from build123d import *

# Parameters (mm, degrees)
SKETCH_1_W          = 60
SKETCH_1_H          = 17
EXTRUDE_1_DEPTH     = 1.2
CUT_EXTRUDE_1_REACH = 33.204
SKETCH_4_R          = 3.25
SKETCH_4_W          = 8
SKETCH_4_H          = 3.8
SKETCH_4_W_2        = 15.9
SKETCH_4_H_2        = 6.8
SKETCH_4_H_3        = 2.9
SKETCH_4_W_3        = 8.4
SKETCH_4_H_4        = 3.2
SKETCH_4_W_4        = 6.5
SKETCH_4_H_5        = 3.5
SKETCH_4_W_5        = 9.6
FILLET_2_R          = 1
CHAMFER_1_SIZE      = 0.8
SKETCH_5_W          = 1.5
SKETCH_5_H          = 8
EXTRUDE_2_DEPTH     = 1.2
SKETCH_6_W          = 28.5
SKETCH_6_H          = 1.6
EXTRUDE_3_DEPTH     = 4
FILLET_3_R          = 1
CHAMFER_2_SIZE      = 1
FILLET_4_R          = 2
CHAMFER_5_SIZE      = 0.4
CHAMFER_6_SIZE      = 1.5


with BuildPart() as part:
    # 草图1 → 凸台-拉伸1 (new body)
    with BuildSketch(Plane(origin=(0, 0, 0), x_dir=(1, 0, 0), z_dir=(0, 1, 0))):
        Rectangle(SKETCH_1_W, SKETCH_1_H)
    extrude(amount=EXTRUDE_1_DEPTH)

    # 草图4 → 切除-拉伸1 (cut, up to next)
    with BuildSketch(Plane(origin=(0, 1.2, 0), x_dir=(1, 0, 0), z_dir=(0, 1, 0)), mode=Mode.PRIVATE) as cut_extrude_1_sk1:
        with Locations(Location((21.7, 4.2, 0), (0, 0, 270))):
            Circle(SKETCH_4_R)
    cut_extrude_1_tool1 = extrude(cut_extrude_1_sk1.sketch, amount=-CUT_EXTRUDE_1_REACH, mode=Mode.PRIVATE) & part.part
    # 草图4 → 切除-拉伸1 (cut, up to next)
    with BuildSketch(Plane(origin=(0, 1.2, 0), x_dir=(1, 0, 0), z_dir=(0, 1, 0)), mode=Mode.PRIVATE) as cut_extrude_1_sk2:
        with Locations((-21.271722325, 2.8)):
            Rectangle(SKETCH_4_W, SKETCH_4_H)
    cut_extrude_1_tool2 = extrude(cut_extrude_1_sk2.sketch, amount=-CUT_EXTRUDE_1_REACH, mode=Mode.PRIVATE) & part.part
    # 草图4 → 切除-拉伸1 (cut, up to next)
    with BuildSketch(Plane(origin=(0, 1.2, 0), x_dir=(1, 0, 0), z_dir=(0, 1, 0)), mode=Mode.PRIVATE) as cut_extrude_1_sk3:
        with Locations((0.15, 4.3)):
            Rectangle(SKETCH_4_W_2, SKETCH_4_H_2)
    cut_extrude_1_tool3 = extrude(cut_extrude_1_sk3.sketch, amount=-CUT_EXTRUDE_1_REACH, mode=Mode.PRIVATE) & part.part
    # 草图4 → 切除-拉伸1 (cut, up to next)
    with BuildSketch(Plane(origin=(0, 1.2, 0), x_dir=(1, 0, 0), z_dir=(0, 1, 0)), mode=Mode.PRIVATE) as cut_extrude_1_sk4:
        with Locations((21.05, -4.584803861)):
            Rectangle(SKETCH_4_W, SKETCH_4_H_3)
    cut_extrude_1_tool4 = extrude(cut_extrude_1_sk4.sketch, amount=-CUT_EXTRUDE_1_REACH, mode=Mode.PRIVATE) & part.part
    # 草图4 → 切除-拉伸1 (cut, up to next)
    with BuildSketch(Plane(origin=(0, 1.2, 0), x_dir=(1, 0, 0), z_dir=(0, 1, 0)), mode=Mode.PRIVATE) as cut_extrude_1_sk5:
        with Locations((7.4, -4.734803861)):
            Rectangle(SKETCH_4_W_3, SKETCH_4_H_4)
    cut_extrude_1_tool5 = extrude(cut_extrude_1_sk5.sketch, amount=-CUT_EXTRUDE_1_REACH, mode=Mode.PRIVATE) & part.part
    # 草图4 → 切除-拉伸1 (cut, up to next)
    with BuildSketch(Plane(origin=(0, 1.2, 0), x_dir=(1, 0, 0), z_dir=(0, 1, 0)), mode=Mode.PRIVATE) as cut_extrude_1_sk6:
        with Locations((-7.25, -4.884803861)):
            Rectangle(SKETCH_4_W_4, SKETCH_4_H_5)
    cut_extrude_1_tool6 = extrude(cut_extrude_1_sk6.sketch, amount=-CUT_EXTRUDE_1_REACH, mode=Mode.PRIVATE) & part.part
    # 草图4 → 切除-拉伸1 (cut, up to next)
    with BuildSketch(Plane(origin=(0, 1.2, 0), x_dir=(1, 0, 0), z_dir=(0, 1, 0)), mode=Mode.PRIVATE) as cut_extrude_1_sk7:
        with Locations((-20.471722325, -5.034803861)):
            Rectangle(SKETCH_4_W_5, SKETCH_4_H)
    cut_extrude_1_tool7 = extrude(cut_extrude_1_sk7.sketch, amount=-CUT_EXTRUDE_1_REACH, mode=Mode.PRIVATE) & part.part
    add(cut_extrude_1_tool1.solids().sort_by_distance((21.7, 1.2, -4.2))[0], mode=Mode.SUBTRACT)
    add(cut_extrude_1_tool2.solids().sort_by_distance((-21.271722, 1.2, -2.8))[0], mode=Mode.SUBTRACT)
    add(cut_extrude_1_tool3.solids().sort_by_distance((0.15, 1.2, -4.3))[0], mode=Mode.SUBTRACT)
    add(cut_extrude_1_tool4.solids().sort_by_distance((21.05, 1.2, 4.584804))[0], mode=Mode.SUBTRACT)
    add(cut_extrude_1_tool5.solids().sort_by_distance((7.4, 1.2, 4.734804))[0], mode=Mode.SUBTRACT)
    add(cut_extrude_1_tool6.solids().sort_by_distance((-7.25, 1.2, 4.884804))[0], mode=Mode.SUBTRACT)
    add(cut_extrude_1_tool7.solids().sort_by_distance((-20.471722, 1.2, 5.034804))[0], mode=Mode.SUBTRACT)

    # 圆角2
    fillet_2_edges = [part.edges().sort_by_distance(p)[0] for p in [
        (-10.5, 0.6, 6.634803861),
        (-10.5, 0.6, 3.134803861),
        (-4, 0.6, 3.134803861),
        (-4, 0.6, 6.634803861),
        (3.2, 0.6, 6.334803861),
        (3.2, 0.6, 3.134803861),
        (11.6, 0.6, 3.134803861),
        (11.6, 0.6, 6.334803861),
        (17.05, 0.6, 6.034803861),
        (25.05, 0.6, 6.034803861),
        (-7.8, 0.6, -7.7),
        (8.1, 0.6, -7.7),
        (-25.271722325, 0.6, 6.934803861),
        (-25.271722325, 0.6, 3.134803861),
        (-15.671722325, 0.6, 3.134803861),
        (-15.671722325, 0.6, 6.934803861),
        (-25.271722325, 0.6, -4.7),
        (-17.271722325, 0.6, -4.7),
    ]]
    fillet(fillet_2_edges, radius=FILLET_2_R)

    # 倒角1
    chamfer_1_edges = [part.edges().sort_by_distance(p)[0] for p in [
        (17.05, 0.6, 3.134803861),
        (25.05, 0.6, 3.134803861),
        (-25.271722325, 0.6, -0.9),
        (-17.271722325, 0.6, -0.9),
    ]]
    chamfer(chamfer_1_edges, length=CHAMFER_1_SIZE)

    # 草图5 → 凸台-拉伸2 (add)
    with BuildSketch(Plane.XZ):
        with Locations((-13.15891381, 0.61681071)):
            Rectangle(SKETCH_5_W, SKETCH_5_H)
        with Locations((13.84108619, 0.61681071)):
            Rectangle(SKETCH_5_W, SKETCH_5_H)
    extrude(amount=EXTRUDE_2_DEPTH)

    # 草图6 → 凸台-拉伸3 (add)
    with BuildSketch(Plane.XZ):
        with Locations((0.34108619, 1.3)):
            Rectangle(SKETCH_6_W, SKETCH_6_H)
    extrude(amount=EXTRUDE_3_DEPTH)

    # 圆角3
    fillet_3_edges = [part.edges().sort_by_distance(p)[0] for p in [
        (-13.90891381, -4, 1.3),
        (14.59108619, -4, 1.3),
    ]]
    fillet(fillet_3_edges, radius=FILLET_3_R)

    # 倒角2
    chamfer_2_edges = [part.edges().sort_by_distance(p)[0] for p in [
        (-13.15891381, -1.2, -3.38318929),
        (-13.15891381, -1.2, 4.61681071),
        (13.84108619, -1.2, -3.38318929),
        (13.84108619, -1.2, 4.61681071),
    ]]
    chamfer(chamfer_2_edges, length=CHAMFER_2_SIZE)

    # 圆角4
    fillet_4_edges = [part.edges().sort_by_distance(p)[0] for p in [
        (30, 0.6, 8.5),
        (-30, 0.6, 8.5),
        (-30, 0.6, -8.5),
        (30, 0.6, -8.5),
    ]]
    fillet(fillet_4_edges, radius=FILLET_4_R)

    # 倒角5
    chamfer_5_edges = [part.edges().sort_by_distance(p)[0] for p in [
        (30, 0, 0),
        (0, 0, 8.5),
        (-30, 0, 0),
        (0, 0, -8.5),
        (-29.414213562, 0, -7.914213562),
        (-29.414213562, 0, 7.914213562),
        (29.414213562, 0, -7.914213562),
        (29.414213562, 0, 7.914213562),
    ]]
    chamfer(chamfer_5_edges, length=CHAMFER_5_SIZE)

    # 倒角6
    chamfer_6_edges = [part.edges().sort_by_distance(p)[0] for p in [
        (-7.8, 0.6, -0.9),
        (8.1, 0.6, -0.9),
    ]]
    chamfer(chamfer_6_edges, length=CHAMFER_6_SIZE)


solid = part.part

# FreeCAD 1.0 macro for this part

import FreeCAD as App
import Part
import Sketcher
from FreeCAD import Vector


def edges_at(feature, points):
    """Names of the edges that pass closest to the given points."""
    edges = feature.Shape.Edges
    near = lambda p: min(range(len(edges)), key=lambda i: edges[i].distToShape(Part.Vertex(*p))[0])
    return sorted({f"Edge{near(p) + 1}" for p in points})

doc = App.newDocument("Part")
body = doc.addObject("PartDesign::Body", "Body")

# Sketch on XZ plane
sketch1 = doc.addObject("Sketcher::SketchObject", "Sketch")
body.addObject(sketch1)
sketch1.AttachmentSupport = (doc.XZ_Plane, [""])
sketch1.MapMode = "FlatFace"
sketch1.addGeometry(Part.LineSegment(Vector(-30, -8, 0), Vector(-30, 8, 0)), False)
sketch1.addGeometry(Part.LineSegment(Vector(-30, 8, 0), Vector(30, 8, 0)), False)
sketch1.addGeometry(Part.LineSegment(Vector(30, 8, 0), Vector(30, -8, 0)), False)
sketch1.addGeometry(Part.LineSegment(Vector(30, -8, 0), Vector(-30, -8, 0)), False)
sketch1.addConstraint(Sketcher.Constraint("Coincident", 0, 2, 1, 1))
sketch1.addConstraint(Sketcher.Constraint("Coincident", 1, 2, 2, 1))
sketch1.addConstraint(Sketcher.Constraint("Coincident", 2, 2, 3, 1))
sketch1.addConstraint(Sketcher.Constraint("Coincident", 3, 2, 0, 1))
sketch1.addConstraint(Sketcher.Constraint("Vertical", 0))
sketch1.addConstraint(Sketcher.Constraint("Horizontal", 1))
sketch1.addConstraint(Sketcher.Constraint("Vertical", 2))
sketch1.addConstraint(Sketcher.Constraint("Horizontal", 3))
sketch1.addConstraint(Sketcher.Constraint("Symmetric", 0, 2, 2, 2, -1, 1))
sketch1.addConstraint(Sketcher.Constraint("DistanceX", 1, 1, 1, 2, 60.0))
sketch1.addConstraint(Sketcher.Constraint("DistanceY", 0, 1, 0, 2, 17.0))
pad1 = doc.addObject("PartDesign::Pad", "Pad")
body.addObject(pad1)
pad1.Profile = sketch1
pad1.Length = 1.2
pad1.Reversed = True

# Sketch on XZ plane
sketch2 = doc.addObject("Sketcher::SketchObject", "Sketch001")
body.addObject(sketch2)
sketch2.AttachmentSupport = (doc.XZ_Plane, [""])
sketch2.MapMode = "FlatFace"
sketch2.AttachmentOffset = App.Placement(Vector(0, 0, -1.2), App.Rotation())
sketch2.addGeometry(Part.Circle(Vector(21.7, -4.2, 0), Vector(0, 0, 1), 3.2), False)
sketch2.addConstraint(Sketcher.Constraint("Diameter", 0, 6.5))
sketch2.addConstraint(Sketcher.Constraint("DistanceX", -1, 1, 0, 3, 21.7))
sketch2.addConstraint(Sketcher.Constraint("DistanceY", 0, 3, -1, 1, 4.2))
pocket1 = doc.addObject("PartDesign::Pocket", "Pocket")
body.addObject(pocket1)
pocket1.Profile = sketch2
pocket1.Type = "UpToFirst"
pocket1.Reversed = True

# Sketch on XZ plane
sketch3 = doc.addObject("Sketcher::SketchObject", "Sketch002")
body.addObject(sketch3)
sketch3.AttachmentSupport = (doc.XZ_Plane, [""])
sketch3.MapMode = "FlatFace"
sketch3.AttachmentOffset = App.Placement(Vector(0, 0, -1.2), App.Rotation())
sketch3.addGeometry(Part.LineSegment(Vector(-25.3, -4.7, 0), Vector(-25.3, -0.9, 0)), False)
sketch3.addGeometry(Part.LineSegment(Vector(-25.3, -0.9, 0), Vector(-17.3, -0.9, 0)), False)
sketch3.addGeometry(Part.LineSegment(Vector(-17.3, -0.9, 0), Vector(-17.3, -4.7, 0)), False)
sketch3.addGeometry(Part.LineSegment(Vector(-17.3, -4.7, 0), Vector(-25.3, -4.7, 0)), False)
sketch3.addConstraint(Sketcher.Constraint("Coincident", 0, 2, 1, 1))
sketch3.addConstraint(Sketcher.Constraint("Coincident", 1, 2, 2, 1))
sketch3.addConstraint(Sketcher.Constraint("Coincident", 2, 2, 3, 1))
sketch3.addConstraint(Sketcher.Constraint("Coincident", 3, 2, 0, 1))
sketch3.addConstraint(Sketcher.Constraint("Vertical", 0))
sketch3.addConstraint(Sketcher.Constraint("Horizontal", 1))
sketch3.addConstraint(Sketcher.Constraint("Vertical", 2))
sketch3.addConstraint(Sketcher.Constraint("Horizontal", 3))
sketch3.addConstraint(Sketcher.Constraint("DistanceX", 1, 1, 1, 2, 8.0))
sketch3.addConstraint(Sketcher.Constraint("DistanceY", 0, 1, 0, 2, 3.8))
sketch3.addConstraint(Sketcher.Constraint("DistanceY", 0, 2, -1, 1, 0.9))
sketch3.addConstraint(Sketcher.Constraint("DistanceX", 0, 2, -1, 1, 25.271722))
pocket2 = doc.addObject("PartDesign::Pocket", "Pocket001")
body.addObject(pocket2)
pocket2.Profile = sketch3
pocket2.Type = "UpToFirst"
pocket2.Reversed = True

# Sketch on XZ plane
sketch4 = doc.addObject("Sketcher::SketchObject", "Sketch003")
body.addObject(sketch4)
sketch4.AttachmentSupport = (doc.XZ_Plane, [""])
sketch4.MapMode = "FlatFace"
sketch4.AttachmentOffset = App.Placement(Vector(0, 0, -1.2), App.Rotation())
sketch4.addGeometry(Part.LineSegment(Vector(-8, -8, 0), Vector(-8, -1, 0)), False)
sketch4.addGeometry(Part.LineSegment(Vector(-8, -1, 0), Vector(8, -1, 0)), False)
sketch4.addGeometry(Part.LineSegment(Vector(8, -1, 0), Vector(8, -8, 0)), False)
sketch4.addGeometry(Part.LineSegment(Vector(8, -8, 0), Vector(-8, -8, 0)), False)
sketch4.addConstraint(Sketcher.Constraint("Coincident", 0, 2, 1, 1))
sketch4.addConstraint(Sketcher.Constraint("Coincident", 1, 2, 2, 1))
sketch4.addConstraint(Sketcher.Constraint("Coincident", 2, 2, 3, 1))
sketch4.addConstraint(Sketcher.Constraint("Coincident", 3, 2, 0, 1))
sketch4.addConstraint(Sketcher.Constraint("Vertical", 0))
sketch4.addConstraint(Sketcher.Constraint("Horizontal", 1))
sketch4.addConstraint(Sketcher.Constraint("Vertical", 2))
sketch4.addConstraint(Sketcher.Constraint("Horizontal", 3))
sketch4.addConstraint(Sketcher.Constraint("DistanceX", 1, 1, 1, 2, 15.9))
sketch4.addConstraint(Sketcher.Constraint("DistanceY", 0, 1, 0, 2, 6.8))
sketch4.addConstraint(Sketcher.Constraint("DistanceX", 0, 2, -1, 1, 7.8))
sketch4.addConstraint(Sketcher.Constraint("DistanceY", 0, 2, -1, 1, 0.9))
pocket3 = doc.addObject("PartDesign::Pocket", "Pocket002")
body.addObject(pocket3)
pocket3.Profile = sketch4
pocket3.Type = "UpToFirst"
pocket3.Reversed = True

# Sketch on XZ plane
sketch5 = doc.addObject("Sketcher::SketchObject", "Sketch004")
body.addObject(sketch5)
sketch5.AttachmentSupport = (doc.XZ_Plane, [""])
sketch5.MapMode = "FlatFace"
sketch5.AttachmentOffset = App.Placement(Vector(0, 0, -1.2), App.Rotation())
sketch5.addGeometry(Part.LineSegment(Vector(17.1, 3.1, 0), Vector(17.1, 6, 0)), False)
sketch5.addGeometry(Part.LineSegment(Vector(17.1, 6, 0), Vector(25.1, 6, 0)), False)
sketch5.addGeometry(Part.LineSegment(Vector(25.1, 6, 0), Vector(25.1, 3.1, 0)), False)
sketch5.addGeometry(Part.LineSegment(Vector(25.1, 3.1, 0), Vector(17.1, 3.1, 0)), False)
sketch5.addConstraint(Sketcher.Constraint("Coincident", 0, 2, 1, 1))
sketch5.addConstraint(Sketcher.Constraint("Coincident", 1, 2, 2, 1))
sketch5.addConstraint(Sketcher.Constraint("Coincident", 2, 2, 3, 1))
sketch5.addConstraint(Sketcher.Constraint("Coincident", 3, 2, 0, 1))
sketch5.addConstraint(Sketcher.Constraint("Vertical", 0))
sketch5.addConstraint(Sketcher.Constraint("Horizontal", 1))
sketch5.addConstraint(Sketcher.Constraint("Vertical", 2))
sketch5.addConstraint(Sketcher.Constraint("Horizontal", 3))
sketch5.addConstraint(Sketcher.Constraint("DistanceX", 1, 1, 1, 2, 8.0))
sketch5.addConstraint(Sketcher.Constraint("DistanceY", 0, 1, 0, 2, 2.9))
sketch5.addConstraint(Sketcher.Constraint("DistanceX", -1, 1, 0, 2, 17.05))
sketch5.addConstraint(Sketcher.Constraint("DistanceY", -1, 1, 0, 2, 6.034804))
pocket4 = doc.addObject("PartDesign::Pocket", "Pocket003")
body.addObject(pocket4)
pocket4.Profile = sketch5
pocket4.Type = "UpToFirst"
pocket4.Reversed = True

# Sketch on XZ plane
sketch6 = doc.addObject("Sketcher::SketchObject", "Sketch005")
body.addObject(sketch6)
sketch6.AttachmentSupport = (doc.XZ_Plane, [""])
sketch6.MapMode = "FlatFace"
sketch6.AttachmentOffset = App.Placement(Vector(0, 0, -1.2), App.Rotation())
sketch6.addGeometry(Part.LineSegment(Vector(3.2, 3.1, 0), Vector(3.2, 6.3, 0)), False)
sketch6.addGeometry(Part.LineSegment(Vector(3.2, 6.3, 0), Vector(11.6, 6.3, 0)), False)
sketch6.addGeometry(Part.LineSegment(Vector(11.6, 6.3, 0), Vector(11.6, 3.1, 0)), False)
sketch6.addGeometry(Part.LineSegment(Vector(11.6, 3.1, 0), Vector(3.2, 3.1, 0)), False)
sketch6.addConstraint(Sketcher.Constraint("Coincident", 0, 2, 1, 1))
sketch6.addConstraint(Sketcher.Constraint("Coincident", 1, 2, 2, 1))
sketch6.addConstraint(Sketcher.Constraint("Coincident", 2, 2, 3, 1))
sketch6.addConstraint(Sketcher.Constraint("Coincident", 3, 2, 0, 1))
sketch6.addConstraint(Sketcher.Constraint("Vertical", 0))
sketch6.addConstraint(Sketcher.Constraint("Horizontal", 1))
sketch6.addConstraint(Sketcher.Constraint("Vertical", 2))
sketch6.addConstraint(Sketcher.Constraint("Horizontal", 3))
sketch6.addConstraint(Sketcher.Constraint("DistanceX", 1, 1, 1, 2, 8.4))
sketch6.addConstraint(Sketcher.Constraint("DistanceY", 0, 1, 0, 2, 3.2))
sketch6.addConstraint(Sketcher.Constraint("DistanceX", -1, 1, 0, 2, 3.2))
sketch6.addConstraint(Sketcher.Constraint("DistanceY", -1, 1, 0, 2, 6.334804))
pocket5 = doc.addObject("PartDesign::Pocket", "Pocket004")
body.addObject(pocket5)
pocket5.Profile = sketch6
pocket5.Type = "UpToFirst"
pocket5.Reversed = True

# Sketch on XZ plane
sketch7 = doc.addObject("Sketcher::SketchObject", "Sketch006")
body.addObject(sketch7)
sketch7.AttachmentSupport = (doc.XZ_Plane, [""])
sketch7.MapMode = "FlatFace"
sketch7.AttachmentOffset = App.Placement(Vector(0, 0, -1.2), App.Rotation())
sketch7.addGeometry(Part.LineSegment(Vector(-10.5, 3.1, 0), Vector(-10.5, 6.6, 0)), False)
sketch7.addGeometry(Part.LineSegment(Vector(-10.5, 6.6, 0), Vector(-4, 6.6, 0)), False)
sketch7.addGeometry(Part.LineSegment(Vector(-4, 6.6, 0), Vector(-4, 3.1, 0)), False)
sketch7.addGeometry(Part.LineSegment(Vector(-4, 3.1, 0), Vector(-10.5, 3.1, 0)), False)
sketch7.addConstraint(Sketcher.Constraint("Coincident", 0, 2, 1, 1))
sketch7.addConstraint(Sketcher.Constraint("Coincident", 1, 2, 2, 1))
sketch7.addConstraint(Sketcher.Constraint("Coincident", 2, 2, 3, 1))
sketch7.addConstraint(Sketcher.Constraint("Coincident", 3, 2, 0, 1))
sketch7.addConstraint(Sketcher.Constraint("Vertical", 0))
sketch7.addConstraint(Sketcher.Constraint("Horizontal", 1))
sketch7.addConstraint(Sketcher.Constraint("Vertical", 2))
sketch7.addConstraint(Sketcher.Constraint("Horizontal", 3))
sketch7.addConstraint(Sketcher.Constraint("DistanceX", 1, 1, 1, 2, 6.5))
sketch7.addConstraint(Sketcher.Constraint("DistanceY", 0, 1, 0, 2, 3.5))
sketch7.addConstraint(Sketcher.Constraint("DistanceX", 1, 2, -1, 1, 4.0))
sketch7.addConstraint(Sketcher.Constraint("DistanceY", -1, 1, 0, 2, 6.634804))
pocket6 = doc.addObject("PartDesign::Pocket", "Pocket005")
body.addObject(pocket6)
pocket6.Profile = sketch7
pocket6.Type = "UpToFirst"
pocket6.Reversed = True

# Sketch on XZ plane
sketch8 = doc.addObject("Sketcher::SketchObject", "Sketch007")
body.addObject(sketch8)
sketch8.AttachmentSupport = (doc.XZ_Plane, [""])
sketch8.MapMode = "FlatFace"
sketch8.AttachmentOffset = App.Placement(Vector(0, 0, -1.2), App.Rotation())
sketch8.addGeometry(Part.LineSegment(Vector(-25.3, 3.1, 0), Vector(-25.3, 6.9, 0)), False)
sketch8.addGeometry(Part.LineSegment(Vector(-25.3, 6.9, 0), Vector(-15.7, 6.9, 0)), False)
sketch8.addGeometry(Part.LineSegment(Vector(-15.7, 6.9, 0), Vector(-15.7, 3.1, 0)), False)
sketch8.addGeometry(Part.LineSegment(Vector(-15.7, 3.1, 0), Vector(-25.3, 3.1, 0)), False)
sketch8.addConstraint(Sketcher.Constraint("Coincident", 0, 2, 1, 1))
sketch8.addConstraint(Sketcher.Constraint("Coincident", 1, 2, 2, 1))
sketch8.addConstraint(Sketcher.Constraint("Coincident", 2, 2, 3, 1))
sketch8.addConstraint(Sketcher.Constraint("Coincident", 3, 2, 0, 1))
sketch8.addConstraint(Sketcher.Constraint("Vertical", 0))
sketch8.addConstraint(Sketcher.Constraint("Horizontal", 1))
sketch8.addConstraint(Sketcher.Constraint("Vertical", 2))
sketch8.addConstraint(Sketcher.Constraint("Horizontal", 3))
sketch8.addConstraint(Sketcher.Constraint("DistanceX", 1, 1, 1, 2, 9.6))
sketch8.addConstraint(Sketcher.Constraint("DistanceY", 0, 1, 0, 2, 3.8))
sketch8.addConstraint(Sketcher.Constraint("DistanceX", 0, 2, -1, 1, 25.271722))
sketch8.addConstraint(Sketcher.Constraint("DistanceY", -1, 1, 0, 2, 6.934804))
pocket7 = doc.addObject("PartDesign::Pocket", "Pocket006")
body.addObject(pocket7)
pocket7.Profile = sketch8
pocket7.Type = "UpToFirst"
pocket7.Reversed = True
doc.recompute()

fillet = doc.addObject("PartDesign::Fillet", "Fillet")
body.addObject(fillet)
fillet.Base = (pocket7, edges_at(pocket7, [
    (-10.5, 0.6, 6.635),
    (-10.5, 0.6, 3.135),
    (-4, 0.6, 3.135),
    (-4, 0.6, 6.635),
    (3.2, 0.6, 6.335),
    (3.2, 0.6, 3.135),
    (11.6, 0.6, 3.135),
    (11.6, 0.6, 6.335),
    (17.05, 0.6, 6.035),
    (25.05, 0.6, 6.035),
    (-7.8, 0.6, -7.7),
    (8.1, 0.6, -7.7),
    (-25.272, 0.6, 6.935),
    (-25.272, 0.6, 3.135),
    (-15.672, 0.6, 3.135),
    (-15.672, 0.6, 6.935),
    (-25.272, 0.6, -4.7),
    (-17.272, 0.6, -4.7),
]))
fillet.Radius = 1
doc.recompute()

chamfer = doc.addObject("PartDesign::Chamfer", "Chamfer")
body.addObject(chamfer)
chamfer.Base = (fillet, edges_at(fillet, [
    (17.05, 0.6, 3.135),
    (25.05, 0.6, 3.135),
    (-25.272, 0.6, -0.9),
    (-17.272, 0.6, -0.9),
]))
chamfer.Size = 0.8

# Sketch on XZ plane
sketch9 = doc.addObject("Sketcher::SketchObject", "Sketch008")
body.addObject(sketch9)
sketch9.AttachmentSupport = (doc.XZ_Plane, [""])
sketch9.MapMode = "FlatFace"
sketch9.addGeometry(Part.LineSegment(Vector(-13.9, 4.6, 0), Vector(-13.9, -3.4, 0)), False)
sketch9.addGeometry(Part.LineSegment(Vector(-13.9, -3.4, 0), Vector(-12.4, -3.4, 0)), False)
sketch9.addGeometry(Part.LineSegment(Vector(-12.4, -3.4, 0), Vector(-12.4, 4.6, 0)), False)
sketch9.addGeometry(Part.LineSegment(Vector(-12.4, 4.6, 0), Vector(-13.9, 4.6, 0)), False)
sketch9.addGeometry(Part.LineSegment(Vector(13.1, 4.6, 0), Vector(13.1, -3.4, 0)), False)
sketch9.addGeometry(Part.LineSegment(Vector(13.1, -3.4, 0), Vector(14.6, -3.4, 0)), False)
sketch9.addGeometry(Part.LineSegment(Vector(14.6, -3.4, 0), Vector(14.6, 4.6, 0)), False)
sketch9.addGeometry(Part.LineSegment(Vector(14.6, 4.6, 0), Vector(13.1, 4.6, 0)), False)
sketch9.addConstraint(Sketcher.Constraint("Coincident", 0, 2, 1, 1))
sketch9.addConstraint(Sketcher.Constraint("Coincident", 1, 2, 2, 1))
sketch9.addConstraint(Sketcher.Constraint("Coincident", 2, 2, 3, 1))
sketch9.addConstraint(Sketcher.Constraint("Coincident", 3, 2, 0, 1))
sketch9.addConstraint(Sketcher.Constraint("Coincident", 4, 2, 5, 1))
sketch9.addConstraint(Sketcher.Constraint("Coincident", 5, 2, 6, 1))
sketch9.addConstraint(Sketcher.Constraint("Coincident", 6, 2, 7, 1))
sketch9.addConstraint(Sketcher.Constraint("Coincident", 7, 2, 4, 1))
sketch9.addConstraint(Sketcher.Constraint("Vertical", 0))
sketch9.addConstraint(Sketcher.Constraint("Horizontal", 1))
sketch9.addConstraint(Sketcher.Constraint("Vertical", 2))
sketch9.addConstraint(Sketcher.Constraint("Horizontal", 3))
sketch9.addConstraint(Sketcher.Constraint("Vertical", 4))
sketch9.addConstraint(Sketcher.Constraint("Horizontal", 5))
sketch9.addConstraint(Sketcher.Constraint("Vertical", 6))
sketch9.addConstraint(Sketcher.Constraint("Horizontal", 7))
sketch9.addConstraint(Sketcher.Constraint("Horizontal", 1, 2, 4, 2))
sketch9.addConstraint(Sketcher.Constraint("Horizontal", 3, 2, 6, 2))
sketch9.addConstraint(Sketcher.Constraint("Equal", 3, 5))
sketch9.addConstraint(Sketcher.Constraint("DistanceY", 0, 2, 0, 1, 8.0))
sketch9.addConstraint(Sketcher.Constraint("DistanceX", 1, 1, 1, 2, 1.5))
sketch9.addConstraint(Sketcher.Constraint("DistanceX", 0, 2, 4, 2, 27.0))
sketch9.addConstraint(Sketcher.Constraint("DistanceY", 0, 2, -1, 1, 3.383189))
sketch9.addConstraint(Sketcher.Constraint("DistanceX", 0, 2, -1, 1, 13.908914))
pad2 = doc.addObject("PartDesign::Pad", "Pad001")
body.addObject(pad2)
pad2.Profile = sketch9
pad2.Length = 1.2

# Sketch on XZ plane
sketch10 = doc.addObject("Sketcher::SketchObject", "Sketch009")
body.addObject(sketch10)
sketch10.AttachmentSupport = (doc.XZ_Plane, [""])
sketch10.MapMode = "FlatFace"
sketch10.addGeometry(Part.LineSegment(Vector(-13.9, 2.1, 0), Vector(-13.9, 0.5, 0)), False)
sketch10.addGeometry(Part.LineSegment(Vector(-13.9, 0.5, 0), Vector(14.6, 0.5, 0)), False)
sketch10.addGeometry(Part.LineSegment(Vector(14.6, 0.5, 0), Vector(14.6, 2.1, 0)), False)
sketch10.addGeometry(Part.LineSegment(Vector(14.6, 2.1, 0), Vector(-13.9, 2.1, 0)), False)
sketch10.addConstraint(Sketcher.Constraint("Coincident", 0, 2, 1, 1))
sketch10.addConstraint(Sketcher.Constraint("Coincident", 1, 2, 2, 1))
sketch10.addConstraint(Sketcher.Constraint("Coincident", 2, 2, 3, 1))
sketch10.addConstraint(Sketcher.Constraint("Coincident", 3, 2, 0, 1))
sketch10.addConstraint(Sketcher.Constraint("Vertical", 0))
sketch10.addConstraint(Sketcher.Constraint("Horizontal", 1))
sketch10.addConstraint(Sketcher.Constraint("Vertical", 2))
sketch10.addConstraint(Sketcher.Constraint("Horizontal", 3))
sketch10.addConstraint(Sketcher.Constraint("DistanceX", 1, 1, 1, 2, 28.5))
sketch10.addConstraint(Sketcher.Constraint("DistanceY", 0, 2, 0, 1, 1.6))
sketch10.addConstraint(Sketcher.Constraint("DistanceY", -1, 1, 0, 2, 0.5))
sketch10.addConstraint(Sketcher.Constraint("DistanceX", 0, 2, -1, 1, 13.908914))
pad3 = doc.addObject("PartDesign::Pad", "Pad002")
body.addObject(pad3)
pad3.Profile = sketch10
pad3.Length = 4
doc.recompute()

fillet2 = doc.addObject("PartDesign::Fillet", "Fillet001")
body.addObject(fillet2)
fillet2.Base = (pad3, edges_at(pad3, [(-13.909, -4, 1.3), (14.591, -4, 1.3)]))
fillet2.Radius = 1
doc.recompute()

chamfer2 = doc.addObject("PartDesign::Chamfer", "Chamfer001")
body.addObject(chamfer2)
chamfer2.Base = (fillet2, edges_at(fillet2, [
    (-13.159, -1.2, -3.383),
    (-13.159, -1.2, 4.617),
    (13.841, -1.2, -3.383),
    (13.841, -1.2, 4.617),
]))
chamfer2.Size = 1
doc.recompute()

fillet3 = doc.addObject("PartDesign::Fillet", "Fillet002")
body.addObject(fillet3)
fillet3.Base = (chamfer2, edges_at(chamfer2, [
    (30, 0.6, 8.5),
    (-30, 0.6, 8.5),
    (-30, 0.6, -8.5),
    (30, 0.6, -8.5),
]))
fillet3.Radius = 2
doc.recompute()

chamfer3 = doc.addObject("PartDesign::Chamfer", "Chamfer002")
body.addObject(chamfer3)
chamfer3.Base = (fillet3, edges_at(fillet3, [
    (30, 0, 0),
    (0, 0, 8.5),
    (-30, 0, 0),
    (0, 0, -8.5),
    (-29.414, 0, -7.914),
    (-29.414, 0, 7.914),
    (29.414, 0, -7.914),
    (29.414, 0, 7.914),
]))
chamfer3.Size = 0.4
doc.recompute()

chamfer4 = doc.addObject("PartDesign::Chamfer", "Chamfer003")
body.addObject(chamfer4)
chamfer4.Base = (chamfer3, edges_at(chamfer3, [(-7.8, 0.6, -0.9), (8.1, 0.6, -0.9)]))
chamfer4.Size = 1.5

doc.recompute()
